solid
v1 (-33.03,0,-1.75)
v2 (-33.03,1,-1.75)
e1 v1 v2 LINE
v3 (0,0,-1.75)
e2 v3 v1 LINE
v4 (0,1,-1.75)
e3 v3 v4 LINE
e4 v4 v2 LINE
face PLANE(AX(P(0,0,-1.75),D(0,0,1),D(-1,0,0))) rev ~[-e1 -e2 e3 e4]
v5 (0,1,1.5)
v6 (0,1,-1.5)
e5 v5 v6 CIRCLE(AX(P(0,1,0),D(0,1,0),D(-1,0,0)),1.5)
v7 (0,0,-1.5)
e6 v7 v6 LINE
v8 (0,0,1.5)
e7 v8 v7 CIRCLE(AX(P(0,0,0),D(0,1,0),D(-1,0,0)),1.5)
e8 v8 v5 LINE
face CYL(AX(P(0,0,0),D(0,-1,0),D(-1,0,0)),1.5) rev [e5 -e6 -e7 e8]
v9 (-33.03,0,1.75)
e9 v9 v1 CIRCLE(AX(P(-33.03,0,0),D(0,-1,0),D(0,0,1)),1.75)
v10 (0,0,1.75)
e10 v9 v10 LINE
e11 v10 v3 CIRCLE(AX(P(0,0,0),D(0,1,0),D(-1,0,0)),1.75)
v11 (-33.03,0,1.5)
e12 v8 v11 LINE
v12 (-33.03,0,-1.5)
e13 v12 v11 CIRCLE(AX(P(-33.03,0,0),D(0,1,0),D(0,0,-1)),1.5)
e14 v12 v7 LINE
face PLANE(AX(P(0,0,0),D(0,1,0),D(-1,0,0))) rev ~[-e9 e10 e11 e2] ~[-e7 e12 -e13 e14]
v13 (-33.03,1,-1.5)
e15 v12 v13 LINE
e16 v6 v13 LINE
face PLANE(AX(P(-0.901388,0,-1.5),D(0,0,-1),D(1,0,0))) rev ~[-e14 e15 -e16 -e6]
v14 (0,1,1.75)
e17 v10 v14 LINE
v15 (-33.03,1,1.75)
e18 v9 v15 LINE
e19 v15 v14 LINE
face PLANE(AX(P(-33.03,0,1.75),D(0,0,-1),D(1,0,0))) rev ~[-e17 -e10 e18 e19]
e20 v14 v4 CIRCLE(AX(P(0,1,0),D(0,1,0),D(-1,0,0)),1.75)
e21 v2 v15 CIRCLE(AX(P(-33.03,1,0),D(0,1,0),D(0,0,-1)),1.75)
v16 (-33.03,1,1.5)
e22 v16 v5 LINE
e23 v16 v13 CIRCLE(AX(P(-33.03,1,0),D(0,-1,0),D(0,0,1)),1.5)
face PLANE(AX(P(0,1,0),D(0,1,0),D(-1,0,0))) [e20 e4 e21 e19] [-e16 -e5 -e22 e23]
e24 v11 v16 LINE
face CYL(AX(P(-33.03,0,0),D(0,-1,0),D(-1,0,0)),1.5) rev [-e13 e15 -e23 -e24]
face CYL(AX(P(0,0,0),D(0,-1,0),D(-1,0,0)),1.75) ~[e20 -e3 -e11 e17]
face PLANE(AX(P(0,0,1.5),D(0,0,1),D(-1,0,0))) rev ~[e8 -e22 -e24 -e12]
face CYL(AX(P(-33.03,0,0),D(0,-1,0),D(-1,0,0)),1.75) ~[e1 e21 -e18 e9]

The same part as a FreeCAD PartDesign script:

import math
import FreeCAD as App
import Part
import Sketcher
from FreeCAD import Vector
Q = App.Units.Quantity

doc = App.newDocument("Part")
params = doc.addObject("Spreadsheet::Sheet", "Params")
for row, (alias, value) in enumerate([
    ("sketch1_radius", "1.5 mm"),
    ("sketch1_radius2", "1.75 mm"),
    ("sketch1_width", "33.03 mm"),
    ("pad1_length", "1 mm"),
], start=1):
    params.set(f"A{row}", alias)
    params.set(f"B{row}", "=" + value)
    params.setAlias(f"B{row}", alias)

body = doc.addObject("PartDesign::Body", "Body")

sketch1 = body.newObject("Sketcher::SketchObject", "Sketch")
sketch1.AttachmentSupport = (doc.getObject("XZ_Plane"), [""])
sketch1.MapMode = "FlatFace"
sketch1.addGeometry(Part.ArcOfCircle(Part.Circle(Vector(0, 0, 0), Vector(0, 0, 1), 1.8), math.radians(-90), math.radians(90)), False)
sketch1.addGeometry(Part.LineSegment(Vector(0, -1.8, 0), Vector(-33, -1.8, 0)), False)
sketch1.addGeometry(Part.ArcOfCircle(Part.Circle(Vector(-33, 0, 0), Vector(0, 0, 1), 1.8), math.radians(90), math.radians(270)), False)
sketch1.addGeometry(Part.LineSegment(Vector(-33, 1.8, 0), Vector(0, 1.8, 0)), False)
sketch1.addGeometry(Part.ArcOfCircle(Part.Circle(Vector(0, 0, 0), Vector(0, 0, 1), 1.5), math.radians(-90), math.radians(90)), False)
sketch1.addGeometry(Part.LineSegment(Vector(0, 1.5, 0), Vector(-33, 1.5, 0)), False)
sketch1.addGeometry(Part.ArcOfCircle(Part.Circle(Vector(-33, 0, 0), Vector(0, 0, 1), 1.5), math.radians(90), math.radians(270)), False)
sketch1.addGeometry(Part.LineSegment(Vector(-33, -1.5, 0), Vector(0, -1.5, 0)), False)
sketch1.addConstraint(Sketcher.Constraint("Tangent", 0, 1, 1, 1))
sketch1.addConstraint(Sketcher.Constraint("Tangent", 1, 2, 2, 2))
sketch1.addConstraint(Sketcher.Constraint("Tangent", 2, 1, 3, 1))
sketch1.addConstraint(Sketcher.Constraint("Tangent", 3, 2, 0, 2))
sketch1.addConstraint(Sketcher.Constraint("Tangent", 4, 2, 5, 1))
sketch1.addConstraint(Sketcher.Constraint("Tangent", 5, 2, 6, 1))
sketch1.addConstraint(Sketcher.Constraint("Tangent", 6, 2, 7, 1))
sketch1.addConstraint(Sketcher.Constraint("Tangent", 7, 2, 4, 1))
sketch1.addConstraint(Sketcher.Constraint("Horizontal", 1))
sketch1.addConstraint(Sketcher.Constraint("Horizontal", 3))
sketch1.addConstraint(Sketcher.Constraint("Horizontal", 5))
sketch1.addConstraint(Sketcher.Constraint("Horizontal", 7))
sketch1.addConstraint(Sketcher.Constraint("Coincident", 0, 3, -1, 1))
sketch1.addConstraint(Sketcher.Constraint("Coincident", 4, 3, -1, 1))
sketch1.addConstraint(Sketcher.Constraint("Vertical", 6, 3, 1, 2))
sketch1.addConstraint(Sketcher.Constraint("Radius", 4, Q("1.5 mm")))
sketch1.addConstraint(Sketcher.Constraint("Radius", 0, Q("1.75 mm")))
sketch1.addConstraint(Sketcher.Constraint("DistanceX", 1, 2, 1, 1, Q("33.03 mm")))
sketch1.setExpression("Constraints[15]", "Params.sketch1_radius")
sketch1.setExpression("Constraints[16]", "Params.sketch1_radius2")
sketch1.setExpression("Constraints[17]", "Params.sketch1_width")
pad1 = body.newObject("PartDesign::Pad", "Pad")
pad1.Profile = sketch1
pad1.setExpression("Length", "Params.pad1_length")
pad1.Reversed = True

doc.recompute()
